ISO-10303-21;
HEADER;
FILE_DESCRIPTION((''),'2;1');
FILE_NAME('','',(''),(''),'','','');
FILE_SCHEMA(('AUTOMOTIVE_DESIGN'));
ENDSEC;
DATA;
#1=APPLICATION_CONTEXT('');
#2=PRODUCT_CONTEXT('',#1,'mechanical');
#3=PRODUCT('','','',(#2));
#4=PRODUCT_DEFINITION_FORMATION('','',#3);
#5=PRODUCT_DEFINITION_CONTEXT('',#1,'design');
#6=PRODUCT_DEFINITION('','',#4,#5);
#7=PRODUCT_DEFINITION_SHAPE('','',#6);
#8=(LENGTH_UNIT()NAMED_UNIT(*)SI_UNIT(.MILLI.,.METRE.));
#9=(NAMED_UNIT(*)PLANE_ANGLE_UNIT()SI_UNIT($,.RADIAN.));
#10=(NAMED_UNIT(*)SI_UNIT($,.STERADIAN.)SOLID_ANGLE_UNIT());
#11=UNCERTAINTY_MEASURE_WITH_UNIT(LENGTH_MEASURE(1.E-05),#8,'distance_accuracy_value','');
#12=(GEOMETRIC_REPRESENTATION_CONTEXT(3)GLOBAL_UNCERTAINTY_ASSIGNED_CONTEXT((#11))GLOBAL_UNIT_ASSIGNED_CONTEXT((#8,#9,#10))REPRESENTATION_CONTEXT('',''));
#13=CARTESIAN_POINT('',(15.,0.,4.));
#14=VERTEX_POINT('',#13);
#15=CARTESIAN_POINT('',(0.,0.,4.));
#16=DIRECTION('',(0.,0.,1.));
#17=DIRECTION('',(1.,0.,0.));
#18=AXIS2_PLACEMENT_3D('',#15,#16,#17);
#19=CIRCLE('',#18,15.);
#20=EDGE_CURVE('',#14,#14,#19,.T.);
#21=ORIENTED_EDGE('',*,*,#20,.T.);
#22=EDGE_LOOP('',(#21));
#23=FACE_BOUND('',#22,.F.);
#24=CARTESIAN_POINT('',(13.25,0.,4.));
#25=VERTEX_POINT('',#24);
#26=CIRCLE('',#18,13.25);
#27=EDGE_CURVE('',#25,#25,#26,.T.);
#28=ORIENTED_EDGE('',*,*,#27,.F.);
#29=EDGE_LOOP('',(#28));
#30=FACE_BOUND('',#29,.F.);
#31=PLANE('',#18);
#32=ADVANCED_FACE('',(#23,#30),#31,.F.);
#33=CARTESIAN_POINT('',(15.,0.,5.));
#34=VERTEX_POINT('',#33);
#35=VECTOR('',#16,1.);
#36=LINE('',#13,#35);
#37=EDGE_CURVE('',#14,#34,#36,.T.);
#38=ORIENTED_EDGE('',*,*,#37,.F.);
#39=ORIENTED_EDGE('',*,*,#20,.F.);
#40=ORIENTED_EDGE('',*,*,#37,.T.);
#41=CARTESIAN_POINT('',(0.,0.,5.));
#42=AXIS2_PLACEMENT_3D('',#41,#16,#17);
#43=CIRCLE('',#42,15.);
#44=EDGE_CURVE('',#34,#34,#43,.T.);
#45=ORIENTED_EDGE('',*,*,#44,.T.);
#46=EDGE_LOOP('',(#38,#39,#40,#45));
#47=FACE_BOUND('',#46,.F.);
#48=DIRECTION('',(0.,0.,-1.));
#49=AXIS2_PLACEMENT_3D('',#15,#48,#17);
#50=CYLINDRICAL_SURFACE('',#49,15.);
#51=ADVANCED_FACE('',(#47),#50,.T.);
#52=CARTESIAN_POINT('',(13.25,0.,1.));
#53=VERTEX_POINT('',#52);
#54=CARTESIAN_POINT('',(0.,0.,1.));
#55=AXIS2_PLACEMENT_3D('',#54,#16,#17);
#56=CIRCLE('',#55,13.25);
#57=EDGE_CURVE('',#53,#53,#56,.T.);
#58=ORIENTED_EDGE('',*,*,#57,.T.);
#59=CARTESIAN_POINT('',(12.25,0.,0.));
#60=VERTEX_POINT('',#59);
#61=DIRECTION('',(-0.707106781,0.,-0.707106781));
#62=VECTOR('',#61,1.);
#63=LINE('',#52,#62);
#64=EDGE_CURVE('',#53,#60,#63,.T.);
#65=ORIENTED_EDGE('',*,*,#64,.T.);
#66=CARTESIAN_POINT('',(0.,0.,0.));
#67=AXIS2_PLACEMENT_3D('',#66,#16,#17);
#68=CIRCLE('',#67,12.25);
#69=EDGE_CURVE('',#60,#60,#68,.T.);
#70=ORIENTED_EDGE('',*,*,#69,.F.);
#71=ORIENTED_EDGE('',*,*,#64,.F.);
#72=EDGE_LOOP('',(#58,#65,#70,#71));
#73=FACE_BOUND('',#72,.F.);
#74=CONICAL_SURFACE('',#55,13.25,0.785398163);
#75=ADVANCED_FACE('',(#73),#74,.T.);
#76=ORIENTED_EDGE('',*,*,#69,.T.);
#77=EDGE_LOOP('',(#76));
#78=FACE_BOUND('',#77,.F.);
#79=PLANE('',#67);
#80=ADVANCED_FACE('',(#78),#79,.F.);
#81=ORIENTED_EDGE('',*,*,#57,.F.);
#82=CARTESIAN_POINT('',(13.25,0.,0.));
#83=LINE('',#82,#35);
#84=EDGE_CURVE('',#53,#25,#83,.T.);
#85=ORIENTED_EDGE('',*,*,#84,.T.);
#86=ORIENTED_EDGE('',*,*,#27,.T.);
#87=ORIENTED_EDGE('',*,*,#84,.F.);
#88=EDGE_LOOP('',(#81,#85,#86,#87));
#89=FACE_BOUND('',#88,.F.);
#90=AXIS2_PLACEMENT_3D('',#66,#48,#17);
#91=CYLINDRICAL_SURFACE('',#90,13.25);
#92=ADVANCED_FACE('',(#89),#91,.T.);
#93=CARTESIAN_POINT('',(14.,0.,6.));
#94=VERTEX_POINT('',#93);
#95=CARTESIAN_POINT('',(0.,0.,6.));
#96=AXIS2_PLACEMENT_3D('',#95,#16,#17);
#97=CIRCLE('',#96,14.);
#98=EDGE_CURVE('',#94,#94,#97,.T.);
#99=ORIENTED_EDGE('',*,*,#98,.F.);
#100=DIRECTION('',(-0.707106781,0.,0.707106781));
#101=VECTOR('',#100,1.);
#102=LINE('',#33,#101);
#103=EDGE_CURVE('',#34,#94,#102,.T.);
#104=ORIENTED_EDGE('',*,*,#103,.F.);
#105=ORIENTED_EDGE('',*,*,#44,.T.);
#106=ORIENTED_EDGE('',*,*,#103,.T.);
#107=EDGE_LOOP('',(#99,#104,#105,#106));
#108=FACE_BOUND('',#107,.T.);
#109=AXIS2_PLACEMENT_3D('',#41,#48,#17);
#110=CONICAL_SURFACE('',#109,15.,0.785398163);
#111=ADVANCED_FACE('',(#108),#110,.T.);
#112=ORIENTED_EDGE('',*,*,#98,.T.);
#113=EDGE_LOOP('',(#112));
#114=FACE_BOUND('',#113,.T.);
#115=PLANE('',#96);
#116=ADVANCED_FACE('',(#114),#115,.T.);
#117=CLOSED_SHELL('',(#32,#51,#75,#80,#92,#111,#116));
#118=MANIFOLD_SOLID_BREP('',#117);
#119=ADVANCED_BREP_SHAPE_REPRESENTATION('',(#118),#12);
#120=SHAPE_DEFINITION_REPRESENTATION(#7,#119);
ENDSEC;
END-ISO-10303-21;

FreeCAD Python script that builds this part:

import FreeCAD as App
import Part
import Sketcher

V = App.Vector
Q = App.Units.Quantity


def edges_at(feature, points):
    """Names of the edges that pass closest to the given points."""
    edges = feature.Shape.Edges
    near = lambda p: min(range(len(edges)), key=lambda i: edges[i].distToShape(Part.Vertex(*p))[0])
    return sorted({f"Edge{near(p) + 1}" for p in points})

doc = App.newDocument("Part")
body = doc.addObject("PartDesign::Body", "Body")

sketch1 = body.newObject("Sketcher::SketchObject", "Sketch")
sketch1.AttachmentSupport = (doc.getObject("XY_Plane"), [""])
sketch1.MapMode = "FlatFace"
sketch1.addGeometry(Part.Circle(V(0, 0, 0), V(0, 0, 1), 13.25), False)
sketch1.addConstraint([
    Sketcher.Constraint("Coincident", 0, 3, -1, 1),
    Sketcher.Constraint("Diameter", 0, Q("26.5 mm")),
])
pad1 = body.newObject("PartDesign::Pad", "Pad")
pad1.Profile = sketch1
pad1.Length = 4

sketch2 = body.newObject("Sketcher::SketchObject", "Sketch001")
sketch2.AttachmentSupport = (doc.getObject("XY_Plane"), [""])
sketch2.MapMode = "FlatFace"
sketch2.AttachmentOffset = App.Placement(V(0, 0, 4), App.Rotation())
sketch2.addGeometry(Part.Circle(V(0, 0, 0), V(0, 0, 1), 15), False)
sketch2.addConstraint([
    Sketcher.Constraint("Coincident", 0, 3, -1, 1),
    Sketcher.Constraint("Diameter", 0, Q("30 mm")),
])
pad2 = body.newObject("PartDesign::Pad", "Pad001")
pad2.Profile = sketch2
pad2.Length = 2
doc.recompute()

chamfer = body.newObject("PartDesign::Chamfer", "Chamfer")
chamfer.Base = (pad2, edges_at(pad2, [(-15, 0, 6)]))
chamfer.Size = 1
doc.recompute()

chamfer2 = body.newObject("PartDesign::Chamfer", "Chamfer001")
chamfer2.Base = (chamfer, edges_at(chamfer, [(-13.25, 0, 0)]))
chamfer2.Size = 1

doc.recompute()
